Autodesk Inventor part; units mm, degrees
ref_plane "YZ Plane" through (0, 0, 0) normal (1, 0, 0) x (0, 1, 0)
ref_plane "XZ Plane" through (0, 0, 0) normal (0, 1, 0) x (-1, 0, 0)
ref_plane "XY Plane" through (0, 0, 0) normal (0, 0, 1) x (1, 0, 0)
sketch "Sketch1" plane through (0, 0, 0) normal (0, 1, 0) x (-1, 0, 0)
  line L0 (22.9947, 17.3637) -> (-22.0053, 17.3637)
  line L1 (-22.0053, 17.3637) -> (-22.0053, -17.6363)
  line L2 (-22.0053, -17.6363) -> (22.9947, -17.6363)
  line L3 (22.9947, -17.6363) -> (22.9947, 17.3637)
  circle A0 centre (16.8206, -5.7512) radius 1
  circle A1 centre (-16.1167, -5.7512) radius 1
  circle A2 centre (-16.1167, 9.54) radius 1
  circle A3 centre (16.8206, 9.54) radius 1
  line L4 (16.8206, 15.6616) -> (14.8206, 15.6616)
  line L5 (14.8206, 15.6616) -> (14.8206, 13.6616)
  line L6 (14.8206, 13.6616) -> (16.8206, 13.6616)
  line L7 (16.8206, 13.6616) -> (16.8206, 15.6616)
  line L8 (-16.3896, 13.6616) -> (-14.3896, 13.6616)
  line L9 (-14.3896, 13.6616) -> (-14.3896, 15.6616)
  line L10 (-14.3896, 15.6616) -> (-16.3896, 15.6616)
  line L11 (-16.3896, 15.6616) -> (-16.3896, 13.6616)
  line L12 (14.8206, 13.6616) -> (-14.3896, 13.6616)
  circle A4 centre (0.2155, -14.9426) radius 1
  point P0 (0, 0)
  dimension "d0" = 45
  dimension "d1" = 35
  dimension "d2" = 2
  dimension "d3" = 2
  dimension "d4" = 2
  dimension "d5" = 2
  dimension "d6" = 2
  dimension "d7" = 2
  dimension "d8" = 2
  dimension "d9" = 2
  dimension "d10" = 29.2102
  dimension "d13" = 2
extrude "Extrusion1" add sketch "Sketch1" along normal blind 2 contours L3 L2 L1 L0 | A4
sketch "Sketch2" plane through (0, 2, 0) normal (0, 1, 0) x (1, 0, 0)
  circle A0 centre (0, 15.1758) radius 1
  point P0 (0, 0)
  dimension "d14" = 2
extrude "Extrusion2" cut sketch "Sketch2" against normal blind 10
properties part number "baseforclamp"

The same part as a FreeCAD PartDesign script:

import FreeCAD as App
import Part
import Sketcher
from FreeCAD import Vector
Q = App.Units.Quantity

doc = App.newDocument("Part")
params = doc.addObject("Spreadsheet::Sheet", "Params")
for row, (alias, value) in enumerate([
    ("sketch1_diameter", "2 mm"),
    ("sketch1_width", "45 mm"),
    ("sketch1_width2", "2 mm"),
    ("sketch1_height", "35 mm"),
    ("pad1_length", "2 mm"),
    ("sketch2_diameter", "2 mm"),
    ("pocket1_length", "10 mm"),
], start=1):
    params.set(f"A{row}", alias)
    params.set(f"B{row}", "=" + value)
    params.setAlias(f"B{row}", alias)

body = doc.addObject("PartDesign::Body", "Body")

# Sketch on XZ plane
sketch1 = doc.addObject("Sketcher::SketchObject", "Sketch")
body.addObject(sketch1)
sketch1.AttachmentSupport = (doc.XZ_Plane, [""])
sketch1.MapMode = "FlatFace"
sketch1.addGeometry([
    Part.LineSegment(Vector(-22.9947, -17.6363, 0), Vector(-22.9947, 17.3637, 0)),  # 0
    Part.LineSegment(Vector(-22.9947, 17.3637, 0), Vector(22.0053, 17.3637, 0)),  # 1
    Part.LineSegment(Vector(22.0053, 17.3637, 0), Vector(22.0053, -17.6363, 0)),  # 2
    Part.LineSegment(Vector(22.0053, -17.6363, 0), Vector(-22.9947, -17.6363, 0)),  # 3
    Part.Circle(Vector(16.1167, -5.7512, 0), Vector(0, 0, 1), 1),  # 4
    Part.Circle(Vector(-16.8206, -5.7512, 0), Vector(0, 0, 1), 1),  # 5
    Part.Circle(Vector(16.1167, 9.54, 0), Vector(0, 0, 1), 1),  # 6
    Part.LineSegment(Vector(14.3896, 15.6616, 0), Vector(14.3896, 13.6616, 0)),  # 7
    Part.LineSegment(Vector(14.3896, 13.6616, 0), Vector(16.3896, 13.6616, 0)),  # 8
    Part.LineSegment(Vector(16.3896, 13.6616, 0), Vector(16.3896, 15.6616, 0)),  # 9
    Part.LineSegment(Vector(16.3896, 15.6616, 0), Vector(14.3896, 15.6616, 0)),  # 10
    Part.Circle(Vector(-16.8206, 9.54, 0), Vector(0, 0, 1), 1),  # 11
    Part.LineSegment(Vector(-14.8206, 15.6616, 0), Vector(-16.8206, 15.6616, 0)),  # 12
    Part.LineSegment(Vector(-16.8206, 15.6616, 0), Vector(-16.8206, 13.6616, 0)),  # 13
    Part.LineSegment(Vector(-16.8206, 13.6616, 0), Vector(-14.8206, 13.6616, 0)),  # 14
    Part.LineSegment(Vector(-14.8206, 13.6616, 0), Vector(-14.8206, 15.6616, 0)),  # 15
], False)
sketch1.addConstraint([
    Sketcher.Constraint("Coincident", 0, 2, 1, 1),
    Sketcher.Constraint("Coincident", 1, 2, 2, 1),
    Sketcher.Constraint("Coincident", 2, 2, 3, 1),
    Sketcher.Constraint("Coincident", 3, 2, 0, 1),
    Sketcher.Constraint("Coincident", 7, 2, 8, 1),
    Sketcher.Constraint("Coincident", 8, 2, 9, 1),
    Sketcher.Constraint("Coincident", 9, 2, 10, 1),
    Sketcher.Constraint("Coincident", 10, 2, 7, 1),
    Sketcher.Constraint("Coincident", 12, 2, 13, 1),
    Sketcher.Constraint("Coincident", 13, 2, 14, 1),
    Sketcher.Constraint("Coincident", 14, 2, 15, 1),
    Sketcher.Constraint("Coincident", 15, 2, 12, 1),
    Sketcher.Constraint("Vertical", 0),
    Sketcher.Constraint("Horizontal", 1),
    Sketcher.Constraint("Vertical", 2),
    Sketcher.Constraint("Horizontal", 3),
    Sketcher.Constraint("Vertical", 7),
    Sketcher.Constraint("Horizontal", 8),
    Sketcher.Constraint("Vertical", 9),
    Sketcher.Constraint("Horizontal", 10),
    Sketcher.Constraint("Horizontal", 12),
    Sketcher.Constraint("Vertical", 13),
    Sketcher.Constraint("Horizontal", 14),
    Sketcher.Constraint("Vertical", 15),
    Sketcher.Constraint("Equal", 4, 5),
    Sketcher.Constraint("Equal", 5, 6),
    Sketcher.Constraint("Equal", 6, 11),
    Sketcher.Constraint("Horizontal", 4, 3, 5, 3),
    Sketcher.Constraint("Horizontal", 6, 3, 11, 3),
    Sketcher.Constraint("Horizontal", 10, 2, 12, 2),
    Sketcher.Constraint("Horizontal", 8, 2, 13, 2),
    Sketcher.Constraint("Vertical", 4, 3, 6, 3),
    Sketcher.Constraint("Vertical", 5, 3, 11, 3),
    Sketcher.Constraint("Vertical", 11, 3, 12, 2),
    Sketcher.Constraint("Equal", 10, 12),
    Sketcher.Constraint("Equal", 14, 7),
    Sketcher.Constraint("Diameter", 4, Q("2 mm")),
    Sketcher.Constraint("DistanceX", 1, 1, 1, 2, Q("45 mm")),
    Sketcher.Constraint("DistanceX", 8, 1, 8, 2, Q("2 mm")),
    Sketcher.Constraint("DistanceY", 0, 1, 0, 2, Q("35 mm")),
    Sketcher.Constraint("DistanceY", -1, 1, 6, 3, Q("9.54 mm")),
    Sketcher.Constraint("DistanceX", 0, 2, 11, 3, Q("6.174 mm")),
    Sketcher.Constraint("DistanceY", 5, 3, 0, 2, Q("23.115 mm")),
    Sketcher.Constraint("DistanceX", 7, 2, 6, 3, Q("1.727 mm")),
    Sketcher.Constraint("DistanceY", 7, 2, 1, 2, Q("3.702 mm")),
    Sketcher.Constraint("DistanceX", -1, 1, 4, 3, Q("16.1167 mm")),
    Sketcher.Constraint("DistanceY", 4, 3, -1, 1, Q("5.7512 mm")),
    Sketcher.Constraint("DistanceX", 5, 3, -1, 1, Q("16.8206 mm")),
])
sketch1.setExpression("Constraints[36]", "Params.sketch1_diameter")
sketch1.setExpression("Constraints[37]", "Params.sketch1_width")
sketch1.setExpression("Constraints[38]", "Params.sketch1_width2")
sketch1.setExpression("Constraints[39]", "Params.sketch1_height")
pad1 = doc.addObject("PartDesign::Pad", "Pad")
body.addObject(pad1)
pad1.Profile = sketch1
pad1.setExpression("Length", "Params.pad1_length")
pad1.Reversed = True

# Sketch on XZ plane
sketch2 = doc.addObject("Sketcher::SketchObject", "Sketch001")
body.addObject(sketch2)
sketch2.AttachmentSupport = (doc.XZ_Plane, [""])
sketch2.MapMode = "FlatFace"
sketch2.AttachmentOffset = App.Placement(Vector(0, 0, -2), App.Rotation())
sketch2.addGeometry(Part.Circle(Vector(0, -15.1758, 0), Vector(0, 0, 1), 1), False)
sketch2.addConstraint([
    Sketcher.Constraint("PointOnObject", 0, 3, -2),
    Sketcher.Constraint("Diameter", 0, Q("2 mm")),
    Sketcher.Constraint("DistanceY", 0, 3, -1, 1, Q("15.1758 mm")),
])
sketch2.setExpression("Constraints[1]", "Params.sketch2_diameter")
pocket1 = doc.addObject("PartDesign::Pocket", "Pocket")
body.addObject(pocket1)
pocket1.Profile = sketch2
pocket1.setExpression("Length", "Params.pocket1_length")
pocket1.Reversed = True

doc.recompute()
